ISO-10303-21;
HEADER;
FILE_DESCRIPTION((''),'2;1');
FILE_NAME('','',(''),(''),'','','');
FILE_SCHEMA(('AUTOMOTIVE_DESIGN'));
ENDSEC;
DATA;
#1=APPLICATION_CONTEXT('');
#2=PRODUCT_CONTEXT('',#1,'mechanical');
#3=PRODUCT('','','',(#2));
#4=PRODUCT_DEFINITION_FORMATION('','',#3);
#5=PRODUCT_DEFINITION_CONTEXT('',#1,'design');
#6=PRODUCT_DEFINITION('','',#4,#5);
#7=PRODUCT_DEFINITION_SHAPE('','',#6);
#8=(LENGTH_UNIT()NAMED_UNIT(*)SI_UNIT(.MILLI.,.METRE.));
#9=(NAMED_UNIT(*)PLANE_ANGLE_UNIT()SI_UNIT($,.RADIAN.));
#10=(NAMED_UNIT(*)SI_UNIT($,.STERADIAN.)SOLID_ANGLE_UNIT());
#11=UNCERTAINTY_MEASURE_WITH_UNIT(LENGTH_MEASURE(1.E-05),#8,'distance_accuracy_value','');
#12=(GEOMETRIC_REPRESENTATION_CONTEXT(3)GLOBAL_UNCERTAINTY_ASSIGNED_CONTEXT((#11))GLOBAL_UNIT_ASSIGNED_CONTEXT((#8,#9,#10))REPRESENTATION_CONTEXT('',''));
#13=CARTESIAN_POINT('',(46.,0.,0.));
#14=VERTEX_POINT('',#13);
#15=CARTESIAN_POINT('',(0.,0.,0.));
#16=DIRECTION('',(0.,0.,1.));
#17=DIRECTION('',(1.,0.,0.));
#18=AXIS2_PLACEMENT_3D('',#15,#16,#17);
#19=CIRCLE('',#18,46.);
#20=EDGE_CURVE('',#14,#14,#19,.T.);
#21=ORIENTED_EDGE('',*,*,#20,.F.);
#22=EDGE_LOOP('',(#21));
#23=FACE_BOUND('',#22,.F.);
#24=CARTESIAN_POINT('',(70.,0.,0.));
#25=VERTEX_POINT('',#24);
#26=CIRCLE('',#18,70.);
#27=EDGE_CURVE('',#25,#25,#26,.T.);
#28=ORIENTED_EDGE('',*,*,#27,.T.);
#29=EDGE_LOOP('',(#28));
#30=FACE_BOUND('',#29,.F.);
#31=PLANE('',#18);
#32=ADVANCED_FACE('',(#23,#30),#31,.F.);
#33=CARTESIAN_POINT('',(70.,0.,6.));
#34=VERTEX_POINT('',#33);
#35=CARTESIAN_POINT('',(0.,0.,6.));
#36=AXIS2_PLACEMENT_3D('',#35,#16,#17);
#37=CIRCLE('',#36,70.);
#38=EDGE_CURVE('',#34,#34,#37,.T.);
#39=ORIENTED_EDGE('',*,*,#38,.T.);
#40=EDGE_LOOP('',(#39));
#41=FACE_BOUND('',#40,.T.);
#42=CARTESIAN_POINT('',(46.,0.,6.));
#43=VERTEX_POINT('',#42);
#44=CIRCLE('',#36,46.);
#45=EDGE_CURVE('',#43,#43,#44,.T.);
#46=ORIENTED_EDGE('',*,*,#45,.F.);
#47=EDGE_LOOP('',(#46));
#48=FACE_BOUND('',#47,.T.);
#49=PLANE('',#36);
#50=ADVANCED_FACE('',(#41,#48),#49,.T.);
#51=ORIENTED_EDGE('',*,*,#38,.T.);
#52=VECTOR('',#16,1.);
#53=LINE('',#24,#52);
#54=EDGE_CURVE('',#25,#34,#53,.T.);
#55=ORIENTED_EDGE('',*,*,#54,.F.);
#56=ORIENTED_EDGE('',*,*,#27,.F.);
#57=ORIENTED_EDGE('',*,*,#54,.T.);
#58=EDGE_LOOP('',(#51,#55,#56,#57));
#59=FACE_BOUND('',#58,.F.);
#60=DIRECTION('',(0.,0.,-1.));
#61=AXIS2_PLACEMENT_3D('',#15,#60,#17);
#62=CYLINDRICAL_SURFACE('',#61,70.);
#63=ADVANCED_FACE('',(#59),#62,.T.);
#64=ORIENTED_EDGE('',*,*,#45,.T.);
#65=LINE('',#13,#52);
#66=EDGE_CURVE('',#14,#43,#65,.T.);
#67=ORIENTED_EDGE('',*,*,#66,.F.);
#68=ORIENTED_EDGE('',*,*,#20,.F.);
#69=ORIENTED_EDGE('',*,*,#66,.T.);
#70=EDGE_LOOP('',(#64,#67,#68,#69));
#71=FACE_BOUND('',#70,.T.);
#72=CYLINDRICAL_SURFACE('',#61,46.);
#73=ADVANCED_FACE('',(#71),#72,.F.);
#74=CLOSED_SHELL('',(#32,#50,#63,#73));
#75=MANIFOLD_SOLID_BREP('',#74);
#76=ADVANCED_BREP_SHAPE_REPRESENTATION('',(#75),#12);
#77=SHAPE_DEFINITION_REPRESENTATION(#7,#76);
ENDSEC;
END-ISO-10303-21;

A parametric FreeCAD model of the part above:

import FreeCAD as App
import Part
import Sketcher
from FreeCAD import Vector
Q = App.Units.Quantity

doc = App.newDocument("Part")
body = doc.addObject("PartDesign::Body", "Body")

# Sketch on XY plane
sketch1 = body.newObject("Sketcher::SketchObject", "Sketch")
sketch1.AttachmentSupport = (doc.getObject("XY_Plane"), [""])
sketch1.MapMode = "FlatFace"
sketch1.addGeometry(Part.Circle(Vector(0, 0, 0), Vector(0, 0, 1), 70), False)
sketch1.addGeometry(Part.Circle(Vector(0, 0, 0), Vector(0, 0, 1), 46), False)
sketch1.addConstraint(Sketcher.Constraint("Coincident", 0, 3, -1, 1))
sketch1.addConstraint(Sketcher.Constraint("Coincident", 1, 3, -1, 1))
sketch1.addConstraint(Sketcher.Constraint("Diameter", 0, Q("140 mm")))
sketch1.addConstraint(Sketcher.Constraint("Diameter", 1, Q("92 mm")))
pad1 = body.newObject("PartDesign::Pad", "Pad")
pad1.Profile = sketch1
pad1.Length = 6

doc.recompute()
